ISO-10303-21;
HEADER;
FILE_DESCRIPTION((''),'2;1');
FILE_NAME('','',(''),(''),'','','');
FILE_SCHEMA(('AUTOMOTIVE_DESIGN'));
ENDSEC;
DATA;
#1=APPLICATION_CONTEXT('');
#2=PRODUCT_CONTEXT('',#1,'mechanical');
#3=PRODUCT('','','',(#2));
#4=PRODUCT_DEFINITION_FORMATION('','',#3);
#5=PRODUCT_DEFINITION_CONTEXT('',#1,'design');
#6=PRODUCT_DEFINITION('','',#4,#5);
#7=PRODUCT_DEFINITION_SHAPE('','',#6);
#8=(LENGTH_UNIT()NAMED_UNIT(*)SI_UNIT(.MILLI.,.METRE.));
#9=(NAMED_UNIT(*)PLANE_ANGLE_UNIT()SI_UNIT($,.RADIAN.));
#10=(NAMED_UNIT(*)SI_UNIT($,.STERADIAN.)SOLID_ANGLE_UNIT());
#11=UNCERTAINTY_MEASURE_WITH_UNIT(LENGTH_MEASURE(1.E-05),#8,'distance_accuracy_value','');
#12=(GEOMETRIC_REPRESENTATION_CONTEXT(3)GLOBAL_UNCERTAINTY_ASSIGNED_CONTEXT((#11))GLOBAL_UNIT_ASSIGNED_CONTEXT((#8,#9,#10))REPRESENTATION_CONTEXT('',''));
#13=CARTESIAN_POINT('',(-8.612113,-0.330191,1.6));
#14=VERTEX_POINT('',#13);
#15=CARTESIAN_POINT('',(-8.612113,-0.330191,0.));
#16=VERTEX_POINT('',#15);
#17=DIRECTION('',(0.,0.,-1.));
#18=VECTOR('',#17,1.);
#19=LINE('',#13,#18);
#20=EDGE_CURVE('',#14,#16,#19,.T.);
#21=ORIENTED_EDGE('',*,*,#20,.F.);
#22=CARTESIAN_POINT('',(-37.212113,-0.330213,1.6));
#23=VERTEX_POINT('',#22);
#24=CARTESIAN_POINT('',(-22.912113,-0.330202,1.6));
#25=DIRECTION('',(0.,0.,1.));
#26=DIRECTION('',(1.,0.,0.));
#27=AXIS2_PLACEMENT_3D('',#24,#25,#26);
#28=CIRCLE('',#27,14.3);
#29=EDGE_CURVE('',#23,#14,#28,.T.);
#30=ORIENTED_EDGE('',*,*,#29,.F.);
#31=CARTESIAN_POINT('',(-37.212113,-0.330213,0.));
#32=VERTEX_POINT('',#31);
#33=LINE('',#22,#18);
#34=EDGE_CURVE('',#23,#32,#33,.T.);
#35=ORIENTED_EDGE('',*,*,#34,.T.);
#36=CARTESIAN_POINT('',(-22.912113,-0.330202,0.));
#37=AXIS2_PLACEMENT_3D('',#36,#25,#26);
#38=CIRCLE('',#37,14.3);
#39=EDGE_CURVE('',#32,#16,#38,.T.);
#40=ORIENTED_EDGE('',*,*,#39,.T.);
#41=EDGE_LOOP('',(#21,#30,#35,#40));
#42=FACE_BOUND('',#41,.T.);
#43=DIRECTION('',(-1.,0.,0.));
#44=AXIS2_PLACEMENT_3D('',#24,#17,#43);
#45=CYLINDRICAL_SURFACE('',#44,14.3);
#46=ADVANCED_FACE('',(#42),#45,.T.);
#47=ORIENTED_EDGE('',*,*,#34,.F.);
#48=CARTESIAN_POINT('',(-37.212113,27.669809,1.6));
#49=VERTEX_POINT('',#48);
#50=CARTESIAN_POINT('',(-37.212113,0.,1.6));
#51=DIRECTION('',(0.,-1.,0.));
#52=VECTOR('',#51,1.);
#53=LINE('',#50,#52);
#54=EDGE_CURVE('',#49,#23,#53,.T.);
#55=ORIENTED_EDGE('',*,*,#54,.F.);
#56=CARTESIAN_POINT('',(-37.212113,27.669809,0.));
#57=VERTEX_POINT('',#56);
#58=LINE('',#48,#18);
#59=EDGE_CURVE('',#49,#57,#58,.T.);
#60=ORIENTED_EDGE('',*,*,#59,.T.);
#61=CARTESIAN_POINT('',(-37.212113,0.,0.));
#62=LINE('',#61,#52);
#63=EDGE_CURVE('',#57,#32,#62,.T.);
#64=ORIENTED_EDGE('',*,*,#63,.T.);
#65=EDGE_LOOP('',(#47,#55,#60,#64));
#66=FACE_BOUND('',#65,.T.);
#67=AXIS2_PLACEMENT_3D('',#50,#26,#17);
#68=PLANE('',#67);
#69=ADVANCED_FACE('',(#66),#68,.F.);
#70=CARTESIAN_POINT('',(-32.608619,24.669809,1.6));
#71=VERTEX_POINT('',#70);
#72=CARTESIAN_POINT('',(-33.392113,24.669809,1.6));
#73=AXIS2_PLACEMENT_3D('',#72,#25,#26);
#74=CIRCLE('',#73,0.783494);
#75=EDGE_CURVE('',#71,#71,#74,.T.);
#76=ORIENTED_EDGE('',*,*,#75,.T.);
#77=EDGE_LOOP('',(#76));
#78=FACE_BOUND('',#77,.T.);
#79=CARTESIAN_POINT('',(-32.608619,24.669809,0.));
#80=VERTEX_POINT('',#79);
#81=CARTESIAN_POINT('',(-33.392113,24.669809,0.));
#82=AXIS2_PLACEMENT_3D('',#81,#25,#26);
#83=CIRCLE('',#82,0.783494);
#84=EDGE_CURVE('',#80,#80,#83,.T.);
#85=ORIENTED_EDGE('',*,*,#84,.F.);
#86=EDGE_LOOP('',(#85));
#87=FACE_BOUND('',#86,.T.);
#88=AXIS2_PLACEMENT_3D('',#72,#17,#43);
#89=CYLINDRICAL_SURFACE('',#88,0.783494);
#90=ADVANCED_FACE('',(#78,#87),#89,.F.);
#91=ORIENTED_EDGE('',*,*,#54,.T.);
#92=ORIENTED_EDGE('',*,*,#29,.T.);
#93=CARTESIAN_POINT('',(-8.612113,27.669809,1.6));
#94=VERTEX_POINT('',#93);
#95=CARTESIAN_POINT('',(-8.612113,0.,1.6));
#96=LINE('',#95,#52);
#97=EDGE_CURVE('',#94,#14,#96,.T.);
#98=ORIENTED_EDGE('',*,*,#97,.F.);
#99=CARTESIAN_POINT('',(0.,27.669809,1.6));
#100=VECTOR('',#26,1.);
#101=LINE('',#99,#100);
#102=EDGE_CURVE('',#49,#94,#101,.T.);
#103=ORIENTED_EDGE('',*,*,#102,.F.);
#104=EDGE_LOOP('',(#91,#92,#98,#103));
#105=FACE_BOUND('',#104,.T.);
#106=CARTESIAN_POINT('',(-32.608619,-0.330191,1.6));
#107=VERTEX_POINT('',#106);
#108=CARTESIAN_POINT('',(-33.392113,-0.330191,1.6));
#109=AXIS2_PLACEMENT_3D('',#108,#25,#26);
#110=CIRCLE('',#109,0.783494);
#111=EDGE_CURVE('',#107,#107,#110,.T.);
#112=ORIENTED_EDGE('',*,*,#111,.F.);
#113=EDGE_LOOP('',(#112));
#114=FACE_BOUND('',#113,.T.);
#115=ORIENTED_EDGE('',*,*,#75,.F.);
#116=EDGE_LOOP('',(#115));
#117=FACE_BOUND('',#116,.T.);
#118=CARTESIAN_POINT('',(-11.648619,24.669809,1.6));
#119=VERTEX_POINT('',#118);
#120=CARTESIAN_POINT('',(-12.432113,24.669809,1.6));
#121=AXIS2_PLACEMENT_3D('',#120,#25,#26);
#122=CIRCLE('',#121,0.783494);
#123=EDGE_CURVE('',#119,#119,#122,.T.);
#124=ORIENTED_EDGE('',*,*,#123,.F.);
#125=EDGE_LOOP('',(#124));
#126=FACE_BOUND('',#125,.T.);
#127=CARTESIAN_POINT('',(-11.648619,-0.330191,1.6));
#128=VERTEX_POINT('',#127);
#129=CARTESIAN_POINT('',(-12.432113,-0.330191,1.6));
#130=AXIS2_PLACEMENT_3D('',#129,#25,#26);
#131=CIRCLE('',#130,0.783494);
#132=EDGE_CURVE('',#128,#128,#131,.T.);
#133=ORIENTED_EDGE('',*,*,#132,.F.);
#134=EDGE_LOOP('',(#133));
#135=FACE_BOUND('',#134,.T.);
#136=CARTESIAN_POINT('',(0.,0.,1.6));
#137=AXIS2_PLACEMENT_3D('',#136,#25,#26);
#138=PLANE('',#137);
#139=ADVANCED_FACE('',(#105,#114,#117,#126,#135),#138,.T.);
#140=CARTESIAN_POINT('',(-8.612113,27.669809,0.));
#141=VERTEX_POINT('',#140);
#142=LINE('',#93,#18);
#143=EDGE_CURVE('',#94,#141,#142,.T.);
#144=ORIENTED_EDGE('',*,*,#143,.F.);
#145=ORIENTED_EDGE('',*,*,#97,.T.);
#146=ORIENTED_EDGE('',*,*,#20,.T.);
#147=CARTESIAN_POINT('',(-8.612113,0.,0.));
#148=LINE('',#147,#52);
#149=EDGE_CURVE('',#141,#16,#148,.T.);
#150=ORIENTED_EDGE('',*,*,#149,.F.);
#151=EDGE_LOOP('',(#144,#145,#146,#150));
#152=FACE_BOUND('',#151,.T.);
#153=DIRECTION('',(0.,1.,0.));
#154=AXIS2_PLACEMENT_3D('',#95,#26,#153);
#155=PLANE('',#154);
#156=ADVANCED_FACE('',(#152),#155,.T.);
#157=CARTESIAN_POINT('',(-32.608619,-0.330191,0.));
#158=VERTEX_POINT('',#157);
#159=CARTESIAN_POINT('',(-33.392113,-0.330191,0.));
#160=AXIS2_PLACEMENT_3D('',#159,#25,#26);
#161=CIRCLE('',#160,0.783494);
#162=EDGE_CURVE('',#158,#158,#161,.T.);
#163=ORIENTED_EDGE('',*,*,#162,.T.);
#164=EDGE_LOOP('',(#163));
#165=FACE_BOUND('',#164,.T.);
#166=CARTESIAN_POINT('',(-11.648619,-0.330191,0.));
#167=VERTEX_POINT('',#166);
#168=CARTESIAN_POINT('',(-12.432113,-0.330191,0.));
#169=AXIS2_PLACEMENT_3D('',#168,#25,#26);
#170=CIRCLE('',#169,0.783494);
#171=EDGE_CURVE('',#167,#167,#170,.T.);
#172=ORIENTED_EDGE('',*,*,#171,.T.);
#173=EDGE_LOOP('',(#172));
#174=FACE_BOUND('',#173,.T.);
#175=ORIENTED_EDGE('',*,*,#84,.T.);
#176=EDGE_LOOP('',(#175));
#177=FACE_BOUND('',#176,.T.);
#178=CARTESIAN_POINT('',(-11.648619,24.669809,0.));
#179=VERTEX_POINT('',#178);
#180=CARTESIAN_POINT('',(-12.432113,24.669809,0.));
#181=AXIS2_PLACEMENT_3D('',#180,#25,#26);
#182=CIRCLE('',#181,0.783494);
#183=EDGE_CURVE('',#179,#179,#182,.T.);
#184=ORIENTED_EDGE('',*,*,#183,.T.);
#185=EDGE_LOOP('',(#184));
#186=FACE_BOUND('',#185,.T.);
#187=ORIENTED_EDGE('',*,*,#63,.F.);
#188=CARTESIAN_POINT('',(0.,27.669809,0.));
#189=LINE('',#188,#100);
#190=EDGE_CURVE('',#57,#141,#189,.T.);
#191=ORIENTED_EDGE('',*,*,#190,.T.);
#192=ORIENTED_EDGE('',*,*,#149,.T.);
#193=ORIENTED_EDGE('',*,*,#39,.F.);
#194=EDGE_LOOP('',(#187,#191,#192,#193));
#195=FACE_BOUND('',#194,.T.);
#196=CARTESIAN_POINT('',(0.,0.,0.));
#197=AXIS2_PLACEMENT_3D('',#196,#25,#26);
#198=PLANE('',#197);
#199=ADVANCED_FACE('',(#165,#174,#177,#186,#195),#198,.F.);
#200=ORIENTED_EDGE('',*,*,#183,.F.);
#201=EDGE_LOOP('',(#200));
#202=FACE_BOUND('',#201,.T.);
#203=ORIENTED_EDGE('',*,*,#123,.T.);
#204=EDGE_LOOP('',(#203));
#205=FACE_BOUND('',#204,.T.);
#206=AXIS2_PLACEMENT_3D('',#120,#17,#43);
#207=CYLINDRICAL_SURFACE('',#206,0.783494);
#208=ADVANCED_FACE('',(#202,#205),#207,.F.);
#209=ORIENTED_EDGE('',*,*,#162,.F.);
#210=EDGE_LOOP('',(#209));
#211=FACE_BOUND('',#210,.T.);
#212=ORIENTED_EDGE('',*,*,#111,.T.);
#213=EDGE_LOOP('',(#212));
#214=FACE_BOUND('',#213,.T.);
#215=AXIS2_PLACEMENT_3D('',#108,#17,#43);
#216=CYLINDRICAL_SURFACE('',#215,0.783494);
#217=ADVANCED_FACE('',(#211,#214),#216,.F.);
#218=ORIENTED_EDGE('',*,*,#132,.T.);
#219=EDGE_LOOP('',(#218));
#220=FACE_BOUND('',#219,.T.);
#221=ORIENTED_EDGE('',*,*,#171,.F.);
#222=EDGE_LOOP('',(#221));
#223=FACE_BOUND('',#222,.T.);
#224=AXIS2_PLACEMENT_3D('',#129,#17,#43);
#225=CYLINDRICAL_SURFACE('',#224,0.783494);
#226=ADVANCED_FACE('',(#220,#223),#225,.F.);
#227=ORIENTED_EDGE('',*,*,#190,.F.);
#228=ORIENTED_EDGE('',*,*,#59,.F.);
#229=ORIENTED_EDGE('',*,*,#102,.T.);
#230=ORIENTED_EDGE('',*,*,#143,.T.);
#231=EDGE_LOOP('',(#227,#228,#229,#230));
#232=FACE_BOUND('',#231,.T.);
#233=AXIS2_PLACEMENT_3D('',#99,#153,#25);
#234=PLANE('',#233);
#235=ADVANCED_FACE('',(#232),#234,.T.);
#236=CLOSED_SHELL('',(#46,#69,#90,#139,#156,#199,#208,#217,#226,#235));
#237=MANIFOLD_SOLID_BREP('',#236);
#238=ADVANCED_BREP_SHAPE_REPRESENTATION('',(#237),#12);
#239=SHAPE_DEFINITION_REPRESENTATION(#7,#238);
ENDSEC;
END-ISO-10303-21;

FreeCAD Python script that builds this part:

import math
import FreeCAD as App
import Part
import Sketcher

V = App.Vector


def add_polygon(sketch, points):
    """Adds a closed chain of lines whose ends are joined by coincident constraints."""
    first, n = sketch.GeometryCount, len(points)
    for a, b in zip(points, points[1:] + points[:1]):
        sketch.addGeometry(Part.LineSegment(App.Vector(*a, 0), App.Vector(*b, 0)), False)
    for i in range(n):
        sketch.addConstraint(Sketcher.Constraint("Coincident", first + i, 2, first + (i + 1) % n, 1))

doc = App.newDocument("Part")
body = doc.addObject("PartDesign::Body", "Body")

# Sketch on XY plane
sketch1 = body.newObject("Sketcher::SketchObject", "Sketch")
sketch1.AttachmentSupport = (doc.getObject("XY_Plane"), [""])
sketch1.MapMode = "FlatFace"
sketch1.addGeometry([
    Part.LineSegment(V(-37.2, 27.7, 0), V(-37.2, -0.3, 0)),  # 0
    Part.ArcOfCircle(Part.Circle(V(-22.9, -0.3, 0), V(0, 0, 1), 14.3), math.radians(-180), math.radians(0)),  # 1
    Part.LineSegment(V(-8.6, -0.3, 0), V(-8.6, 27.7, 0)),  # 2
    Part.LineSegment(V(-8.6, 27.7, 0), V(-17.7, 27.7, 0)),  # 3
    Part.LineSegment(V(-17.7, 27.7, 0), V(-17.7, 31.7, 0)),  # 4
    Part.LineSegment(V(-17.7, 31.7, 0), V(-28.2, 31.7, 0)),  # 5
    Part.LineSegment(V(-28.2, 31.7, 0), V(-28.2, 27.7, 0)),  # 6
    Part.LineSegment(V(-28.2, 27.7, 0), V(-37.2, 27.7, 0)),  # 7
    Part.Circle(V(-33.4, -0.3, 0), V(0, 0, 1), 0.8),  # 8
    Part.Circle(V(-12.4, -0.3, 0), V(0, 0, 1), 0.8),  # 9
    Part.Circle(V(-33.4, 24.7, 0), V(0, 0, 1), 0.8),  # 10
    Part.Circle(V(-12.4, 24.7, 0), V(0, 0, 1), 0.8),  # 11
], False)
sketch1.addConstraint([
    Sketcher.Constraint("Tangent", 0, 2, 1, 1),
    Sketcher.Constraint("Tangent", 1, 2, 2, 1),
    Sketcher.Constraint("Coincident", 2, 2, 3, 1),
    Sketcher.Constraint("Coincident", 3, 2, 4, 1),
    Sketcher.Constraint("Coincident", 4, 2, 5, 1),
    Sketcher.Constraint("Coincident", 5, 2, 6, 1),
    Sketcher.Constraint("Coincident", 6, 2, 7, 1),
    Sketcher.Constraint("Coincident", 7, 2, 0, 1),
    Sketcher.Constraint("Vertical", 0),
    Sketcher.Constraint("Vertical", 2),
    Sketcher.Constraint("Horizontal", 3),
    Sketcher.Constraint("Vertical", 4),
    Sketcher.Constraint("Horizontal", 5),
    Sketcher.Constraint("Vertical", 6),
    Sketcher.Constraint("Horizontal", 7),
    Sketcher.Constraint("Equal", 8, 9),
    Sketcher.Constraint("Equal", 9, 10),
    Sketcher.Constraint("Equal", 10, 11),
    Sketcher.Constraint("Horizontal", 8, 3, 9, 3),
    Sketcher.Constraint("Horizontal", 10, 3, 11, 3),
    Sketcher.Constraint("Horizontal", 9, 3, 1, 2),
    Sketcher.Constraint("Horizontal", 3, 2, 6, 2),
    Sketcher.Constraint("Vertical", 8, 3, 10, 3),
    Sketcher.Constraint("Vertical", 9, 3, 11, 3),
    Sketcher.Constraint("Equal", 3, 7),
    Sketcher.Constraint("Radius", 1, 14.3),
    Sketcher.Constraint("DistanceY", 2, 1, 2, 2, 28.0),
    Sketcher.Constraint("DistanceY", 4, 1, 4, 2, 4.0),
    Sketcher.Constraint("DistanceX", 5, 2, 5, 1, 10.5),
    Sketcher.Constraint("DistanceY", 8, 3, 10, 3, 25.0),
    Sketcher.Constraint("DistanceX", 8, 3, 1, 3, 10.48),
    Sketcher.Constraint("DistanceX", 1, 3, 9, 3, 10.48),
    Sketcher.Constraint("Diameter", 8, 1.566987),
    Sketcher.Constraint("DistanceY", 1, 3, -1, 1, 0.330202),
    Sketcher.Constraint("DistanceX", 1, 3, -1, 1, 22.912113),
])
pad1 = body.newObject("PartDesign::Pad", "Pad")
pad1.Profile = sketch1
pad1.Length = 1.6

# Sketch on XY plane
sketch2 = body.newObject("Sketcher::SketchObject", "Sketch001")
sketch2.AttachmentSupport = (doc.getObject("XY_Plane"), [""])
sketch2.MapMode = "FlatFace"
sketch2.AttachmentOffset = App.Placement(V(0, 0, 1.6), App.Rotation())
add_polygon(sketch2, [(-28, 28), (-18, 28), (-18, 35), (-29, 35)])  # lines 0-3
sketch2.addConstraint([
    Sketcher.Constraint("Horizontal", 0),
    Sketcher.Constraint("Vertical", 1),
    Sketcher.Constraint("Horizontal", 2),
    Sketcher.Constraint("DistanceX", 0, 1, 0, 2, 10.5),
    Sketcher.Constraint("DistanceX", 2, 2, 2, 1, 11.08143),
    Sketcher.Constraint("DistanceY", 1, 1, 1, 2, 7.31621),
    Sketcher.Constraint("DistanceY", -1, 1, 0, 2, 27.669809),
    Sketcher.Constraint("DistanceX", 0, 2, -1, 1, 17.662113),
])
pocket1 = body.newObject("PartDesign::Pocket", "Pocket")
pocket1.Profile = sketch2
pocket1.Length = 10

doc.recompute()
